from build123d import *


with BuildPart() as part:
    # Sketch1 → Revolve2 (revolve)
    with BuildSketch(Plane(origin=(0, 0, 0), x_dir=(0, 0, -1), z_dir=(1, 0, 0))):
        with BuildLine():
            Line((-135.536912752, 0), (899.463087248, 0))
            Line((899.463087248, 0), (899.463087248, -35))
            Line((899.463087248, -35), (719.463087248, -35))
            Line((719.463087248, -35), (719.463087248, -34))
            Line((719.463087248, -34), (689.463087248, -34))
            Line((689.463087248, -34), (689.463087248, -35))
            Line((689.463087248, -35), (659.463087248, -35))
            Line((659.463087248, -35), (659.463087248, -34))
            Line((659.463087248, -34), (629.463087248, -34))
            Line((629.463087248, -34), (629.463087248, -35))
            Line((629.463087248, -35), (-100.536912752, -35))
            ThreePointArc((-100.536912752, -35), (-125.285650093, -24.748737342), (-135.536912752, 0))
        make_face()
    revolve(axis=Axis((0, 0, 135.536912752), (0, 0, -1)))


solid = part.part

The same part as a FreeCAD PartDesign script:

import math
import FreeCAD as App
import Part
import Sketcher
from FreeCAD import Vector
Q = App.Units.Quantity

doc = App.newDocument("Part")
body = doc.addObject("PartDesign::Body", "Body")

# Sketch on YZ plane
sketch1 = body.newObject("Sketcher::SketchObject", "Sketch")
sketch1.AttachmentSupport = (doc.getObject("YZ_Plane"), [""])
sketch1.MapMode = "FlatFace"
sketch1.addGeometry(Part.LineSegment(Vector(0, -899.5, 0), Vector(0, 135.5, 0)), False)
sketch1.addGeometry(Part.ArcOfCircle(Part.Circle(Vector(0, 100.5, 0), Vector(0, 0, 1), 35), math.radians(90), math.radians(180)), False)
sketch1.addGeometry(Part.LineSegment(Vector(-35, 100.5, 0), Vector(-35, -629.5, 0)), False)
sketch1.addGeometry(Part.LineSegment(Vector(-35, -629.5, 0), Vector(-34, -629.5, 0)), False)
sketch1.addGeometry(Part.LineSegment(Vector(-34, -629.5, 0), Vector(-34, -659.5, 0)), False)
sketch1.addGeometry(Part.LineSegment(Vector(-34, -659.5, 0), Vector(-35, -659.5, 0)), False)
sketch1.addGeometry(Part.LineSegment(Vector(-35, -659.5, 0), Vector(-35, -689.5, 0)), False)
sketch1.addGeometry(Part.LineSegment(Vector(-35, -689.5, 0), Vector(-34, -689.5, 0)), False)
sketch1.addGeometry(Part.LineSegment(Vector(-34, -689.5, 0), Vector(-34, -719.5, 0)), False)
sketch1.addGeometry(Part.LineSegment(Vector(-34, -719.5, 0), Vector(-35, -719.5, 0)), False)
sketch1.addGeometry(Part.LineSegment(Vector(-35, -719.5, 0), Vector(-35, -899.5, 0)), False)
sketch1.addGeometry(Part.LineSegment(Vector(-35, -899.5, 0), Vector(0, -899.5, 0)), False)
sketch1.addConstraint(Sketcher.Constraint("Coincident", 0, 2, 1, 1))
sketch1.addConstraint(Sketcher.Constraint("Tangent", 1, 2, 2, 1))
sketch1.addConstraint(Sketcher.Constraint("Coincident", 2, 2, 3, 1))
sketch1.addConstraint(Sketcher.Constraint("Coincident", 3, 2, 4, 1))
sketch1.addConstraint(Sketcher.Constraint("Coincident", 4, 2, 5, 1))
sketch1.addConstraint(Sketcher.Constraint("Coincident", 5, 2, 6, 1))
sketch1.addConstraint(Sketcher.Constraint("Coincident", 6, 2, 7, 1))
sketch1.addConstraint(Sketcher.Constraint("Coincident", 7, 2, 8, 1))
sketch1.addConstraint(Sketcher.Constraint("Coincident", 8, 2, 9, 1))
sketch1.addConstraint(Sketcher.Constraint("Coincident", 9, 2, 10, 1))
sketch1.addConstraint(Sketcher.Constraint("Coincident", 10, 2, 11, 1))
sketch1.addConstraint(Sketcher.Constraint("Coincident", 11, 2, 0, 1))
sketch1.addConstraint(Sketcher.Constraint("Vertical", 0))
sketch1.addConstraint(Sketcher.Constraint("Vertical", 2))
sketch1.addConstraint(Sketcher.Constraint("Horizontal", 3))
sketch1.addConstraint(Sketcher.Constraint("Vertical", 4))
sketch1.addConstraint(Sketcher.Constraint("Horizontal", 5))
sketch1.addConstraint(Sketcher.Constraint("Vertical", 6))
sketch1.addConstraint(Sketcher.Constraint("Horizontal", 7))
sketch1.addConstraint(Sketcher.Constraint("Vertical", 8))
sketch1.addConstraint(Sketcher.Constraint("Horizontal", 9))
sketch1.addConstraint(Sketcher.Constraint("Vertical", 10))
sketch1.addConstraint(Sketcher.Constraint("Horizontal", 11))
sketch1.addConstraint(Sketcher.Constraint("PointOnObject", 1, 3, -2))
sketch1.addConstraint(Sketcher.Constraint("PointOnObject", 0, 2, -2))
sketch1.addConstraint(Sketcher.Constraint("Vertical", 2, 2, 5, 2))
sketch1.addConstraint(Sketcher.Constraint("Vertical", 4, 2, 7, 2))
sketch1.addConstraint(Sketcher.Constraint("Vertical", 6, 2, 9, 2))
sketch1.addConstraint(Sketcher.Constraint("Equal", 4, 6))
sketch1.addConstraint(Sketcher.Constraint("Equal", 6, 8))
sketch1.addConstraint(Sketcher.Constraint("Radius", 1, Q("35 mm")))
sketch1.addConstraint(Sketcher.Constraint("DistanceX", 3, 1, 3, 2, Q("1 mm")))
sketch1.addConstraint(Sketcher.Constraint("DistanceY", 0, 1, 0, 2, Q("1035 mm")))
sketch1.addConstraint(Sketcher.Constraint("DistanceY", 2, 2, 2, 1, Q("730 mm")))
sketch1.addConstraint(Sketcher.Constraint("DistanceY", 4, 2, 4, 1, Q("30 mm")))
sketch1.addConstraint(Sketcher.Constraint("DistanceY", -1, 1, 1, 3, Q("100.536913 mm")))
revolution = body.newObject("PartDesign::Revolution", "Revolution")
revolution.Profile = sketch1
revolution.ReferenceAxis = (sketch1, ["V_Axis"])
revolution.Angle = 360

doc.recompute()
